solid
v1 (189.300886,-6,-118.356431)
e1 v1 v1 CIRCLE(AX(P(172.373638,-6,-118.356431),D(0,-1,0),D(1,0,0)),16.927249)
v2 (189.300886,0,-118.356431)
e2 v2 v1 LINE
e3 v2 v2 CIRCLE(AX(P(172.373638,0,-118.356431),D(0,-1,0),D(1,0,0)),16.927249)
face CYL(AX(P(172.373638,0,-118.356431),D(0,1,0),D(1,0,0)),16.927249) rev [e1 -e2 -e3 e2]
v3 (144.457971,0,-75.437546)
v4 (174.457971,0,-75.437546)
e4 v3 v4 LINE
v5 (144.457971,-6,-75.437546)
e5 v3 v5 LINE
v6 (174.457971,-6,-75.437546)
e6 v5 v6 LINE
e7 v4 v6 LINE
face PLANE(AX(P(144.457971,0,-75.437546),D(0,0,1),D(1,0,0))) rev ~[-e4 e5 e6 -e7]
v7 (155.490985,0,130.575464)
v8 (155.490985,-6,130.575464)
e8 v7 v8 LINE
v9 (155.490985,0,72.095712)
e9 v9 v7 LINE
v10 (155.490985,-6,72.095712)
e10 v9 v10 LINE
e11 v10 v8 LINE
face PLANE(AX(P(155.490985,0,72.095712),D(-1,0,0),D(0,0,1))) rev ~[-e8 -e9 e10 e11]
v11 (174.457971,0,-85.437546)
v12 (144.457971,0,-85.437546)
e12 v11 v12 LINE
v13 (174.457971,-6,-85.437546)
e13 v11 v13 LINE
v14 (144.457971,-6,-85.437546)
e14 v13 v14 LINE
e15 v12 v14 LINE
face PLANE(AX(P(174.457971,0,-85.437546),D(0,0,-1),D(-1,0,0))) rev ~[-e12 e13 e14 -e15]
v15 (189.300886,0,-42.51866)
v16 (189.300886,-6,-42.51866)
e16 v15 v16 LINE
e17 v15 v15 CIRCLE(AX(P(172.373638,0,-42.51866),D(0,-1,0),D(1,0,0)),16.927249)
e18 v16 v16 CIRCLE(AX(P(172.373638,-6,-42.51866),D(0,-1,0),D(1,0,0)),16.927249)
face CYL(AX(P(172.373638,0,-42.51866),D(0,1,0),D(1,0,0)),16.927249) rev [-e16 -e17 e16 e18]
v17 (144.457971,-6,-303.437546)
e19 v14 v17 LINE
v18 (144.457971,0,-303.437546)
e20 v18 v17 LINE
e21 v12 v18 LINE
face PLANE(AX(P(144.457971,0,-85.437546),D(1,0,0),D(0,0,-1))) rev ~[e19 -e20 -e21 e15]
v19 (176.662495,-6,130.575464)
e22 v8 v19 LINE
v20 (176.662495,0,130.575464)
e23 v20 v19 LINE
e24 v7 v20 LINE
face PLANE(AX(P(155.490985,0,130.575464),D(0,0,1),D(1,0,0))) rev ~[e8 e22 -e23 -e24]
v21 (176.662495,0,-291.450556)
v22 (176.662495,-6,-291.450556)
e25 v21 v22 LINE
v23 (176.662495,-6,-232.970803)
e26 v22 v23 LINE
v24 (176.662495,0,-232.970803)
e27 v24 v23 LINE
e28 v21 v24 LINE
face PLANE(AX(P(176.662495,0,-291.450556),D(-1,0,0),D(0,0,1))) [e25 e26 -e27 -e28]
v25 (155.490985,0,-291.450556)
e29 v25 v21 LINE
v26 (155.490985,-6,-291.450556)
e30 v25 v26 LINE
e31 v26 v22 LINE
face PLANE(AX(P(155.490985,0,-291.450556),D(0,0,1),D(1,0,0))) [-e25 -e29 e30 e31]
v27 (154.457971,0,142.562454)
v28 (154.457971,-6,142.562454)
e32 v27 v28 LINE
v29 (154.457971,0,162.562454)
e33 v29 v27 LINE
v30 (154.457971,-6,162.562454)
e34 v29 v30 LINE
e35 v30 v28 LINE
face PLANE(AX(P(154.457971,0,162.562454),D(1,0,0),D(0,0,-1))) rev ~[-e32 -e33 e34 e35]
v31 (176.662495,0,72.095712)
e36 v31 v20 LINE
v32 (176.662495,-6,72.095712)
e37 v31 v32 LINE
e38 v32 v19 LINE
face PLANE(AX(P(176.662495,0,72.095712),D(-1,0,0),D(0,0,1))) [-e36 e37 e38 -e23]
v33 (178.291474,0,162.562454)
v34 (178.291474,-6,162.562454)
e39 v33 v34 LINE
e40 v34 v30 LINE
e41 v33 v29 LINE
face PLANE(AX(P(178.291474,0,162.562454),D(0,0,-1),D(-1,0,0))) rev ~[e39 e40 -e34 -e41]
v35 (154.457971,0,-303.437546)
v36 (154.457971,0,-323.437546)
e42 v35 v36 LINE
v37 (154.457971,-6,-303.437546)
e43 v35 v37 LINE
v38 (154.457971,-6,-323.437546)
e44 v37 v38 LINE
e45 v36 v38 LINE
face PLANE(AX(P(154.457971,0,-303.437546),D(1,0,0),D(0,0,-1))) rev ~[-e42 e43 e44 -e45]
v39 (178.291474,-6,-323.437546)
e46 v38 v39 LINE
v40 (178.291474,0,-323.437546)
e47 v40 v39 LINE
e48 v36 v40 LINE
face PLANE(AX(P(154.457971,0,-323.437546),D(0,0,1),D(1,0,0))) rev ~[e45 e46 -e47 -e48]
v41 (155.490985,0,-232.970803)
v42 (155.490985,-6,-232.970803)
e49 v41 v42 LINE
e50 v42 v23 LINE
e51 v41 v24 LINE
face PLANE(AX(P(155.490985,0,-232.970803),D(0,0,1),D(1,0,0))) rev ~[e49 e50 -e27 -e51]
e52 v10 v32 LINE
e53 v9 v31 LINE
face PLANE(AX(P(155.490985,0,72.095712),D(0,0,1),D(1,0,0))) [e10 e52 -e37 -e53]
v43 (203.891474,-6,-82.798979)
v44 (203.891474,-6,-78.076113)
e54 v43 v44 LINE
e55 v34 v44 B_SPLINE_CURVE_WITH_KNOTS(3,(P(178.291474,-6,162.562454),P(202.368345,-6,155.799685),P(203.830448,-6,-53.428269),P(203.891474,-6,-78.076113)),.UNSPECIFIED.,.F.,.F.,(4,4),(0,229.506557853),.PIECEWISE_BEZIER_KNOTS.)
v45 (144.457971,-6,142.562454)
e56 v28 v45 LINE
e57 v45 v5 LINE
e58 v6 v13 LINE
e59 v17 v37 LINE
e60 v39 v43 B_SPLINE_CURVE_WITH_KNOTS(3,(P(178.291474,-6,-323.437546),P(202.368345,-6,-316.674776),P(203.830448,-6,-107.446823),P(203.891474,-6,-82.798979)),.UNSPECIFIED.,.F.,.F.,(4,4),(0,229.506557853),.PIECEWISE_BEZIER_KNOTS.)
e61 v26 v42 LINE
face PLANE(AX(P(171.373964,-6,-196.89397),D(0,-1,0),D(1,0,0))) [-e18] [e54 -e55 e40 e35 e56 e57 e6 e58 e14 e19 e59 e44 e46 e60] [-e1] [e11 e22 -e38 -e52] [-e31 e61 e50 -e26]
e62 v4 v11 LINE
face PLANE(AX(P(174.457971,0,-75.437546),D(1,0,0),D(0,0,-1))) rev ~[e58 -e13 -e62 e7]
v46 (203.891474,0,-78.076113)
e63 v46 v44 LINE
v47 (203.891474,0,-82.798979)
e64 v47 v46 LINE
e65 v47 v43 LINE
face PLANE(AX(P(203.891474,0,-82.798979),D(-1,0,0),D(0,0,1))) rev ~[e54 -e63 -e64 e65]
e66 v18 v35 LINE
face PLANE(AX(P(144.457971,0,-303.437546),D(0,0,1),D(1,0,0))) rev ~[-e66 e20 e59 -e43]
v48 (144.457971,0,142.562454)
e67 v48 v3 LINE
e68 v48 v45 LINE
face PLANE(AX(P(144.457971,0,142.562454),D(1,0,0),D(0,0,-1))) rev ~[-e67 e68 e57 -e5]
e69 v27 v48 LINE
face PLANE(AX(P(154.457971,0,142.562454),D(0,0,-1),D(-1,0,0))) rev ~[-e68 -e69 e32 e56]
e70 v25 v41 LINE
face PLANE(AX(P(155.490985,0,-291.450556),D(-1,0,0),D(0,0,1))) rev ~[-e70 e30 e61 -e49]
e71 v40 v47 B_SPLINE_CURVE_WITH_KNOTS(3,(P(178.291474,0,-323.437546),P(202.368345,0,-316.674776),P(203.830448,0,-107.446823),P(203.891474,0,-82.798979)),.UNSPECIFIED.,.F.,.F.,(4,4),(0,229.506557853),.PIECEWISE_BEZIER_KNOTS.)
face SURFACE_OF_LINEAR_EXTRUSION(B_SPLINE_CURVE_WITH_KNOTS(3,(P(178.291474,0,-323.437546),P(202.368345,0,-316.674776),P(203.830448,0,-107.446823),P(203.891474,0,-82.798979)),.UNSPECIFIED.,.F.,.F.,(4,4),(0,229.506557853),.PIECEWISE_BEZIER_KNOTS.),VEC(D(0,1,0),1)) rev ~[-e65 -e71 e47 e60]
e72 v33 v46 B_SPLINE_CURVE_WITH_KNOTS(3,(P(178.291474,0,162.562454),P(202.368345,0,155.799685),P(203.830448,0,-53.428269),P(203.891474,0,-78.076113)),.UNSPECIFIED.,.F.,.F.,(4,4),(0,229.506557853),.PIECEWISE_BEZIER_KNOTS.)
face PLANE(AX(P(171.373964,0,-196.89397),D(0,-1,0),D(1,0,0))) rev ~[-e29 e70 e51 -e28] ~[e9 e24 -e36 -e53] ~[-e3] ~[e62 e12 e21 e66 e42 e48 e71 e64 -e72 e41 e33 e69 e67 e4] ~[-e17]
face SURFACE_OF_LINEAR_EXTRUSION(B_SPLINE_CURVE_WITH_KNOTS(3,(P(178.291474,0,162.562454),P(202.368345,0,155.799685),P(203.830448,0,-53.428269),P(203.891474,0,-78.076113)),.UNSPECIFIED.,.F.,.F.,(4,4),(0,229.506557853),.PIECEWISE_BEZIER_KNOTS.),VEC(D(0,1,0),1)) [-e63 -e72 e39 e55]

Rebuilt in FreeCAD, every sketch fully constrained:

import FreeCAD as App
import Part
import Sketcher

V = App.Vector


def add_polygon(sketch, points):
    """Adds a closed chain of lines whose ends are joined by coincident constraints."""
    first, n = sketch.GeometryCount, len(points)
    for a, b in zip(points, points[1:] + points[:1]):
        sketch.addGeometry(Part.LineSegment(App.Vector(*a, 0), App.Vector(*b, 0)), False)
    for i in range(n):
        sketch.addConstraint(Sketcher.Constraint("Coincident", first + i, 2, first + (i + 1) % n, 1))

doc = App.newDocument("Part")
body = doc.addObject("PartDesign::Body", "Body")

# Sketch on XZ plane
sketch1 = doc.addObject("Sketcher::SketchObject", "Sketch")
body.addObject(sketch1)
sketch1.AttachmentSupport = (doc.XZ_Plane, [""])
sketch1.MapMode = "FlatFace"
sketch1.addGeometry(Part.BSplineCurve([V(178.291474, -323.437546, 0), V(202.368345, -316.674776, 0), V(203.830448, -107.446823, 0), V(203.891474, -82.798979, 0)], [4, 4], [0, 229.506557853], False, 3, [1, 1, 1, 1], False), False)  # 0
sketch1.addGeometry(Part.LineSegment(V(203.891474, -82.798979, 0), V(203.891474, -78.076113, 0)), False)  # 1
sketch1.addGeometry(Part.BSplineCurve([V(178.291474, 162.562454, 0), V(202.368345, 155.799685, 0), V(203.830448, -53.428269, 0), V(203.891474, -78.076113, 0)], [4, 4], [0, 229.506557853], False, 3, [1, 1, 1, 1], False), False)  # 2
sketch1.addGeometry(Part.LineSegment(V(178.291474, 162.562454, 0), V(154.457971, 162.562454, 0)), False)  # 3
sketch1.addGeometry(Part.LineSegment(V(154.457971, 162.562454, 0), V(154.457971, 142.562454, 0)), False)  # 4
sketch1.addGeometry(Part.LineSegment(V(154.457971, 142.562454, 0), V(144.457971, 142.562454, 0)), False)  # 5
sketch1.addGeometry(Part.LineSegment(V(144.457971, 142.562454, 0), V(144.457971, -75.437546, 0)), False)  # 6
sketch1.addGeometry(Part.LineSegment(V(144.457971, -75.437546, 0), V(174.457971, -75.437546, 0)), False)  # 7
sketch1.addGeometry(Part.LineSegment(V(174.457971, -75.437546, 0), V(174.457971, -85.437546, 0)), False)  # 8
sketch1.addGeometry(Part.LineSegment(V(174.457971, -85.437546, 0), V(144.457971, -85.437546, 0)), False)  # 9
sketch1.addGeometry(Part.LineSegment(V(144.457971, -85.437546, 0), V(144.457971, -303.437546, 0)), False)  # 10
sketch1.addGeometry(Part.LineSegment(V(144.457971, -303.437546, 0), V(154.457971, -303.437546, 0)), False)  # 11
sketch1.addGeometry(Part.LineSegment(V(154.457971, -303.437546, 0), V(154.457971, -323.437546, 0)), False)  # 12
sketch1.addGeometry(Part.LineSegment(V(154.457971, -323.437546, 0), V(178.291474, -323.437546, 0)), False)  # 13
add_polygon(sketch1, [(176.662495, -291.450556), (155.490985, -291.450556), (155.490985, -232.970803), (176.662495, -232.970803)])  # lines 14-17
sketch1.addGeometry(Part.Circle(V(172.373638, -118.356431, 0), V(0, 0, 1), 16.927249), False)  # 18
add_polygon(sketch1, [(176.662495, 72.095712), (155.490985, 72.095712), (155.490985, 130.575464), (176.662495, 130.575464)])  # lines 19-22
sketch1.addGeometry(Part.Circle(V(172.373638, -42.51866, 0), V(0, 0, 1), 16.927249), False)  # 23
sketch1.addConstraint([
    Sketcher.Constraint("Block", 0),
    Sketcher.Constraint("Block", 2),
    Sketcher.Constraint("Coincident", 0, 2, 1, 1),
    Sketcher.Constraint("Coincident", 1, 2, 2, 2),
    Sketcher.Constraint("Coincident", 2, 1, 3, 1),
    Sketcher.Constraint("Coincident", 3, 2, 4, 1),
    Sketcher.Constraint("Coincident", 4, 2, 5, 1),
    Sketcher.Constraint("Coincident", 5, 2, 6, 1),
    Sketcher.Constraint("Coincident", 6, 2, 7, 1),
    Sketcher.Constraint("Coincident", 7, 2, 8, 1),
    Sketcher.Constraint("Coincident", 8, 2, 9, 1),
    Sketcher.Constraint("Coincident", 9, 2, 10, 1),
    Sketcher.Constraint("Coincident", 10, 2, 11, 1),
    Sketcher.Constraint("Coincident", 11, 2, 12, 1),
    Sketcher.Constraint("Coincident", 12, 2, 13, 1),
    Sketcher.Constraint("Coincident", 13, 2, 0, 1),
    Sketcher.Constraint("Horizontal", 3),
    Sketcher.Constraint("Vertical", 4),
    Sketcher.Constraint("Horizontal", 5),
    Sketcher.Constraint("Vertical", 6),
    Sketcher.Constraint("Horizontal", 7),
    Sketcher.Constraint("Vertical", 8),
    Sketcher.Constraint("Horizontal", 9),
    Sketcher.Constraint("Vertical", 10),
    Sketcher.Constraint("Horizontal", 11),
    Sketcher.Constraint("Vertical", 12),
    Sketcher.Constraint("Horizontal", 13),
    Sketcher.Constraint("Horizontal", 14),
    Sketcher.Constraint("Vertical", 15),
    Sketcher.Constraint("Horizontal", 16),
    Sketcher.Constraint("Vertical", 17),
    Sketcher.Constraint("Horizontal", 19),
    Sketcher.Constraint("Vertical", 20),
    Sketcher.Constraint("Horizontal", 21),
    Sketcher.Constraint("Vertical", 22),
    Sketcher.Constraint("DistanceX", 5, 2, 5, 1, 10.0),
    Sketcher.Constraint("DistanceX", 7, 1, 7, 2, 30.0),
    Sketcher.Constraint("DistanceX", 9, 2, 9, 1, 30.0),
    Sketcher.Constraint("DistanceX", 11, 1, 11, 2, 10.0),
    Sketcher.Constraint("DistanceY", 4, 2, 4, 1, 20.0),
    Sketcher.Constraint("DistanceY", 6, 2, 6, 1, 218.0),
    Sketcher.Constraint("DistanceY", 8, 2, 8, 1, 10.0),
    Sketcher.Constraint("DistanceY", 10, 2, 10, 1, 218.0),
    Sketcher.Constraint("Diameter", 18, 33.854497),
    Sketcher.Constraint("Diameter", 23, 33.854497),
    Sketcher.Constraint("DistanceX", 14, 2, 14, 1, 21.17151),
    Sketcher.Constraint("DistanceX", 19, 2, 19, 1, 21.17151),
    Sketcher.Constraint("DistanceX", 3, 2, 3, 1, 23.833503),
    Sketcher.Constraint("DistanceY", 15, 1, 15, 2, 58.479752),
    Sketcher.Constraint("DistanceY", 20, 1, 20, 2, 58.479752),
    Sketcher.Constraint("DistanceY", 18, 3, -1, 1, 118.356431),
    Sketcher.Constraint("DistanceY", 23, 3, -1, 1, 42.51866),
    Sketcher.Constraint("DistanceY", -1, 1, 19, 2, 72.095712),
    Sketcher.Constraint("DistanceY", 11, 2, 14, 2, 11.98699),
    Sketcher.Constraint("DistanceX", 14, 2, 13, 2, 22.80049),
    Sketcher.Constraint("DistanceX", -1, 1, 18, 3, 172.373638),
    Sketcher.Constraint("DistanceX", -1, 1, 23, 3, 172.373638),
    Sketcher.Constraint("DistanceX", -1, 1, 19, 2, 155.490985),
])
pad1 = doc.addObject("PartDesign::Pad", "Pad")
body.addObject(pad1)
pad1.Profile = sketch1
pad1.Length = 6

doc.recompute()
